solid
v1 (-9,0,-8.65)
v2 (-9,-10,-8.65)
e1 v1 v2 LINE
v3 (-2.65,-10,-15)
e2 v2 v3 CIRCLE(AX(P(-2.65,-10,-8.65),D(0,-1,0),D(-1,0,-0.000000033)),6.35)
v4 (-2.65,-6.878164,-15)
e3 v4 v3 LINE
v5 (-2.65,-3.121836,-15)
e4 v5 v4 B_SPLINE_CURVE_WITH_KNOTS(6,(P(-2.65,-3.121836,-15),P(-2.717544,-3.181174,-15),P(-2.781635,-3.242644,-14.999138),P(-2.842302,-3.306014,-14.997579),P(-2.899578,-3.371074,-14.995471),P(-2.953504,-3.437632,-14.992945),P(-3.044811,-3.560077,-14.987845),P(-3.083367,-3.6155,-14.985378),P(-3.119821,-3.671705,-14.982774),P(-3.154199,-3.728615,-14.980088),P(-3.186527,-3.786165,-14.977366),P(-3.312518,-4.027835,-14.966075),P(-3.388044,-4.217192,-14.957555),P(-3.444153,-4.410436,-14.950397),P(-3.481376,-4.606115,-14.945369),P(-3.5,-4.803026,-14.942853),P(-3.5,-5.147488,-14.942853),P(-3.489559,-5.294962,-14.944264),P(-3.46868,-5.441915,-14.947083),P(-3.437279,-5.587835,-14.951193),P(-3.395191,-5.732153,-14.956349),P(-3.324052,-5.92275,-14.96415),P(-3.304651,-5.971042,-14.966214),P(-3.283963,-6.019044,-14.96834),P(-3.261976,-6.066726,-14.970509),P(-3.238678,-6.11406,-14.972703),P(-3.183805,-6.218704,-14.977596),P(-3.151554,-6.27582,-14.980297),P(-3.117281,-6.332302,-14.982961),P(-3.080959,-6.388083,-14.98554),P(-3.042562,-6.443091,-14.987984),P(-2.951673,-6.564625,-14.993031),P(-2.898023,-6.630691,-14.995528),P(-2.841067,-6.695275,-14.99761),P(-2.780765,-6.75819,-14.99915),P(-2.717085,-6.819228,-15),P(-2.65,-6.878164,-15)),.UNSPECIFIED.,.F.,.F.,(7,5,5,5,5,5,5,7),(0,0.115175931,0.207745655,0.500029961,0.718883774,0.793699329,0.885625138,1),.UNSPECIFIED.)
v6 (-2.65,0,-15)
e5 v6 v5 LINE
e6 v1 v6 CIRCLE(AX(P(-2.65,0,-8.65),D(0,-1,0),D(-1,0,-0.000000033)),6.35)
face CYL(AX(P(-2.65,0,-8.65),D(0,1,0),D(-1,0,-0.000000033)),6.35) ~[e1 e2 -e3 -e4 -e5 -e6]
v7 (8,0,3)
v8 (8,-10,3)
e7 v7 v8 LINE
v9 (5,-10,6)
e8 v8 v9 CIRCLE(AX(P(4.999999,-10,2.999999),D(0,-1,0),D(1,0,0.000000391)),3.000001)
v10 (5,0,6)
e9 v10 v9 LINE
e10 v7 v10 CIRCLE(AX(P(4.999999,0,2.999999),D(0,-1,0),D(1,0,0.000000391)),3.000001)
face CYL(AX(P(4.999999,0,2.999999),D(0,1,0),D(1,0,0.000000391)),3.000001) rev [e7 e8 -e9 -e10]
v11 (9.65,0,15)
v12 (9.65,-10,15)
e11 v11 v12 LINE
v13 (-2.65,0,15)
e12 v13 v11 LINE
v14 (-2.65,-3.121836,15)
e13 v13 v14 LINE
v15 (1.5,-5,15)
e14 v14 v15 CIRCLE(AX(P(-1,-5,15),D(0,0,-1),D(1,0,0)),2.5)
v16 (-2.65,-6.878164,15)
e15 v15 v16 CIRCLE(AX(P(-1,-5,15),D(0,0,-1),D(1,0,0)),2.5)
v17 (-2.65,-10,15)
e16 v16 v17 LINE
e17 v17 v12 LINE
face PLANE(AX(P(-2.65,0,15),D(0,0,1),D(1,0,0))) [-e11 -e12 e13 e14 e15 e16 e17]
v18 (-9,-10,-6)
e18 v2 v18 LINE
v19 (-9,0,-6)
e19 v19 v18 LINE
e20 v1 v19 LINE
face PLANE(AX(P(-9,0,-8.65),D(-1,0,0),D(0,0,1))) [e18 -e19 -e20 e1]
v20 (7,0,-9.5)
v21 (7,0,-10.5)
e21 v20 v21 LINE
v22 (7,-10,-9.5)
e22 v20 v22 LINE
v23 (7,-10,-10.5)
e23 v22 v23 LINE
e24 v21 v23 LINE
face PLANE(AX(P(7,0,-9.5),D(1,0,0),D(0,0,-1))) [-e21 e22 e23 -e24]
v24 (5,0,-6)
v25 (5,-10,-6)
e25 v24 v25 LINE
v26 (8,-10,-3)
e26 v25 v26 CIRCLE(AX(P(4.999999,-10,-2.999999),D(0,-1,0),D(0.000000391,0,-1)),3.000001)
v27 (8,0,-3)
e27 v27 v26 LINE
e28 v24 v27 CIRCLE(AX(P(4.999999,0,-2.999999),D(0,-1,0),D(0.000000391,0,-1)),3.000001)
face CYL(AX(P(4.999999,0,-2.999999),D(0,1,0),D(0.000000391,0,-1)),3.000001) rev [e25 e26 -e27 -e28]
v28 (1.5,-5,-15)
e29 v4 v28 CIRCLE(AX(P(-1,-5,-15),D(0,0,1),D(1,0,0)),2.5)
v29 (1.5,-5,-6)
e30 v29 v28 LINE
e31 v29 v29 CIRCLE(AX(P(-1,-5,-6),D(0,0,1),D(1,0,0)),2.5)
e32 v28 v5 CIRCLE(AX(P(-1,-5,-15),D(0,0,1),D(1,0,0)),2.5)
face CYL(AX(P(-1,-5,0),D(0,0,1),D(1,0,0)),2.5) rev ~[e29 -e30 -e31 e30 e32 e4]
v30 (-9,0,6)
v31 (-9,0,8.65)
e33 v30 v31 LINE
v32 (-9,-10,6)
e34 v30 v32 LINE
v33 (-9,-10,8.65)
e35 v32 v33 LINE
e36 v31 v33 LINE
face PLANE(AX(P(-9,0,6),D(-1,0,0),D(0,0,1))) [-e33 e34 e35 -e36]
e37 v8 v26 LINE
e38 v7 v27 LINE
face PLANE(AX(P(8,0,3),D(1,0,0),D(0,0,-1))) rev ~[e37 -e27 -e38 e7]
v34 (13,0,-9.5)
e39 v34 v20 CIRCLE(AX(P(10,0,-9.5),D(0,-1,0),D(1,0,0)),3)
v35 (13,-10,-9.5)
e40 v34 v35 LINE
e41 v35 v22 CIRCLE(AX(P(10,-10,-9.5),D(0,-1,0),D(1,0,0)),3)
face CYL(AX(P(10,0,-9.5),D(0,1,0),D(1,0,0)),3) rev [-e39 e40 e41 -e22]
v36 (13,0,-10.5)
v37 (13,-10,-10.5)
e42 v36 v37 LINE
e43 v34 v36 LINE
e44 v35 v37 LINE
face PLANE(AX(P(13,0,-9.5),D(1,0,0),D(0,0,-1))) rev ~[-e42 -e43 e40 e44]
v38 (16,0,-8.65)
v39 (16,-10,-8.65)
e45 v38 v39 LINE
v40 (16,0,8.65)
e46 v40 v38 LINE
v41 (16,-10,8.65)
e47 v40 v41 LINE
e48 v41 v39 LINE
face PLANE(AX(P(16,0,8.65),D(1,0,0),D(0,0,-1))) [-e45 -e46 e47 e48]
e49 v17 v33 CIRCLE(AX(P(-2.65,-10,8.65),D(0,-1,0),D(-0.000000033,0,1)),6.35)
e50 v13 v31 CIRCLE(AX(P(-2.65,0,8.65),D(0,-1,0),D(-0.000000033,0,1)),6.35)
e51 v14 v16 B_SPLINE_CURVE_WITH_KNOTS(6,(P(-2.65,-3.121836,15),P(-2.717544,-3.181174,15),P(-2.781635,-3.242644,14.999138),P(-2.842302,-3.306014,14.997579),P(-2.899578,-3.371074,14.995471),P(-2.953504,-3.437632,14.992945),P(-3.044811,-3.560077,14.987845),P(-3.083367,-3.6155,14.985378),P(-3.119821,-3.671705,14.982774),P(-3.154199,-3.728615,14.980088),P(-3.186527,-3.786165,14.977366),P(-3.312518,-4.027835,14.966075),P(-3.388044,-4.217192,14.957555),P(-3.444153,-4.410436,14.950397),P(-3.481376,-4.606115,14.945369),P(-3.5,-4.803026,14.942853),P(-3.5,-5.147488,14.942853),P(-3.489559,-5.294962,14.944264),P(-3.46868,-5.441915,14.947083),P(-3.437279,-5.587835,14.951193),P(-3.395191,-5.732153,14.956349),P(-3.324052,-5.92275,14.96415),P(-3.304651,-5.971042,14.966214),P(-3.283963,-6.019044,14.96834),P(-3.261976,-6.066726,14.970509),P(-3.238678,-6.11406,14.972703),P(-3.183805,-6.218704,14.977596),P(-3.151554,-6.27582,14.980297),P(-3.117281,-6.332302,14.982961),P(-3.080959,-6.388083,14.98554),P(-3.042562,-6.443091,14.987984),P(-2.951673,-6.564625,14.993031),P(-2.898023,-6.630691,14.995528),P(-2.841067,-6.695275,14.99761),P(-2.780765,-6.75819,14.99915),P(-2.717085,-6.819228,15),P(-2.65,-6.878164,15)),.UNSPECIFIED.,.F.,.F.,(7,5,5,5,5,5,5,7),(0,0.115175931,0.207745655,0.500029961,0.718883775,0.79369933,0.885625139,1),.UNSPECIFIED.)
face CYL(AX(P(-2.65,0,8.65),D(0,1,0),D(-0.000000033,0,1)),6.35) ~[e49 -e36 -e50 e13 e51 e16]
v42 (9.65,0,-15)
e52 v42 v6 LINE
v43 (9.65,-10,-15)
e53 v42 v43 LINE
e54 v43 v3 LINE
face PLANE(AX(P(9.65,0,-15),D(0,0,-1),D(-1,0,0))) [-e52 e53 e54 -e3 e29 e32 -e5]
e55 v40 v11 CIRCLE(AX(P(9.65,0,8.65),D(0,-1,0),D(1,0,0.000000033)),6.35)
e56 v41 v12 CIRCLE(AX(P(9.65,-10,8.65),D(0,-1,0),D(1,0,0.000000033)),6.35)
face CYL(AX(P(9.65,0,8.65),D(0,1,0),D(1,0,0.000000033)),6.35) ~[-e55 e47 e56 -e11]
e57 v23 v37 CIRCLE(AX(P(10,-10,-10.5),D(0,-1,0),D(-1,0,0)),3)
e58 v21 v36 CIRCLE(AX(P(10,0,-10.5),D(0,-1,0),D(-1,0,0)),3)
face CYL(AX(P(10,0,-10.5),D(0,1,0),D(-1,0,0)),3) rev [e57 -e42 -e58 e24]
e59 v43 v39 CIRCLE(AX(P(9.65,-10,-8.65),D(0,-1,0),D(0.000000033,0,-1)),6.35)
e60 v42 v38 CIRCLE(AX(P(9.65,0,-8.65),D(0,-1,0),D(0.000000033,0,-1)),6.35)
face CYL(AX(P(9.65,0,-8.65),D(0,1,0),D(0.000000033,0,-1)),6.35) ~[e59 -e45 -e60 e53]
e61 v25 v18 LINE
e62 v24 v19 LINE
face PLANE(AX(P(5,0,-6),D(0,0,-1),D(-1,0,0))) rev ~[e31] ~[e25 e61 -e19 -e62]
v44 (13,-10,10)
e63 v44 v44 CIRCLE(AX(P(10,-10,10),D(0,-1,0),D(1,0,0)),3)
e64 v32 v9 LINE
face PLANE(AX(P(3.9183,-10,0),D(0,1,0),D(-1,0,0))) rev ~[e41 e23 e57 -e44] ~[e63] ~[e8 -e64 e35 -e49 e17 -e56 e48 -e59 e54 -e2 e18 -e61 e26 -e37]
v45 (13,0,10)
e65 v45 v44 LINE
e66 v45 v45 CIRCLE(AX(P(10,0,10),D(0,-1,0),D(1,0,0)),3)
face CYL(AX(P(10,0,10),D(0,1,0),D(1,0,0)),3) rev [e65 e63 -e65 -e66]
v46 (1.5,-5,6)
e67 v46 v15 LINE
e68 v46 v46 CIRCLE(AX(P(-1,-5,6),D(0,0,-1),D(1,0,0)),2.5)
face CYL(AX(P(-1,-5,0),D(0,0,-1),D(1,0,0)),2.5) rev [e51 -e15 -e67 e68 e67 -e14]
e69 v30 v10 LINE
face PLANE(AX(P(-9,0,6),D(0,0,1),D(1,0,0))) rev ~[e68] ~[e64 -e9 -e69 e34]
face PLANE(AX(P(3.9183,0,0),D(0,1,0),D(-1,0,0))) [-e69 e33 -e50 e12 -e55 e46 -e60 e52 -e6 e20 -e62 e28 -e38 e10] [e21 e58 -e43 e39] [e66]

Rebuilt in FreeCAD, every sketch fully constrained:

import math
import FreeCAD as App
import Part
import Sketcher

V = App.Vector
Q = App.Units.Quantity

doc = App.newDocument("Part")
body = doc.addObject("PartDesign::Body", "Body")

sketch1 = body.newObject("Sketcher::SketchObject", "Sketch")
sketch1.AttachmentSupport = (doc.getObject("XZ_Plane"), [""])
sketch1.MapMode = "FlatFace"
sketch1.addGeometry(Part.LineSegment(V(9.7, 15, 0), V(-2.6, 15, 0)), False)
sketch1.addGeometry(Part.ArcOfCircle(Part.Circle(V(-2.6, 8.6, 0), V(0, 0, 1), 6.4), math.radians(90), math.radians(180)), False)
sketch1.addGeometry(Part.LineSegment(V(-9, 8.7, 0), V(-9, 6, 0)), False)
sketch1.addGeometry(Part.LineSegment(V(-9, 6, 0), V(5, 6, 0)), False)
sketch1.addGeometry(Part.ArcOfCircle(Part.Circle(V(5, 3, 0), V(0, 0, 1), 3), math.radians(0), math.radians(90)), False)
sketch1.addGeometry(Part.LineSegment(V(8, 3, 0), V(8, -3, 0)), False)
sketch1.addGeometry(Part.ArcOfCircle(Part.Circle(V(5, -3, 0), V(0, 0, 1), 3), math.radians(-90), math.radians(0)), False)
sketch1.addGeometry(Part.LineSegment(V(5, -6, 0), V(-9, -6, 0)), False)
sketch1.addGeometry(Part.LineSegment(V(-9, -6, 0), V(-9, -8.7, 0)), False)
sketch1.addGeometry(Part.ArcOfCircle(Part.Circle(V(-2.6, -8.6, 0), V(0, 0, 1), 6.4), math.radians(-180), math.radians(-90)), False)
sketch1.addGeometry(Part.LineSegment(V(-2.6, -15, 0), V(9.7, -15, 0)), False)
sketch1.addGeometry(Part.ArcOfCircle(Part.Circle(V(9.6, -8.6, 0), V(0, 0, 1), 6.4), math.radians(-90), math.radians(0)), False)
sketch1.addGeometry(Part.LineSegment(V(16, -8.7, 0), V(16, 8.7, 0)), False)
sketch1.addGeometry(Part.ArcOfCircle(Part.Circle(V(9.6, 8.6, 0), V(0, 0, 1), 6.4), math.radians(0), math.radians(90)), False)
sketch1.addGeometry(Part.LineSegment(V(13, -9.5, 0), V(13, -10.5, 0)), False)
sketch1.addGeometry(Part.ArcOfCircle(Part.Circle(V(10, -10.5, 0), V(0, 0, 1), 3), math.radians(180), math.radians(360)), False)
sketch1.addGeometry(Part.LineSegment(V(7, -10.5, 0), V(7, -9.5, 0)), False)
sketch1.addGeometry(Part.ArcOfCircle(Part.Circle(V(10, -9.5, 0), V(0, 0, 1), 3), math.radians(0), math.radians(180)), False)
sketch1.addGeometry(Part.Circle(V(10, 10, 0), V(0, 0, 1), 3), False)
sketch1.addConstraint(Sketcher.Constraint("Tangent", 0, 2, 1, 1))
sketch1.addConstraint(Sketcher.Constraint("Tangent", 1, 2, 2, 1))
sketch1.addConstraint(Sketcher.Constraint("Coincident", 2, 2, 3, 1))
sketch1.addConstraint(Sketcher.Constraint("Tangent", 3, 2, 4, 2))
sketch1.addConstraint(Sketcher.Constraint("Tangent", 4, 1, 5, 1))
sketch1.addConstraint(Sketcher.Constraint("Tangent", 5, 2, 6, 2))
sketch1.addConstraint(Sketcher.Constraint("Tangent", 6, 1, 7, 1))
sketch1.addConstraint(Sketcher.Constraint("Coincident", 7, 2, 8, 1))
sketch1.addConstraint(Sketcher.Constraint("Tangent", 8, 2, 9, 1))
sketch1.addConstraint(Sketcher.Constraint("Tangent", 9, 2, 10, 1))
sketch1.addConstraint(Sketcher.Constraint("Tangent", 10, 2, 11, 1))
sketch1.addConstraint(Sketcher.Constraint("Tangent", 11, 2, 12, 1))
sketch1.addConstraint(Sketcher.Constraint("Tangent", 12, 2, 13, 1))
sketch1.addConstraint(Sketcher.Constraint("Tangent", 13, 2, 0, 1))
sketch1.addConstraint(Sketcher.Constraint("Tangent", 14, 2, 15, 2))
sketch1.addConstraint(Sketcher.Constraint("Tangent", 15, 1, 16, 1))
sketch1.addConstraint(Sketcher.Constraint("Tangent", 16, 2, 17, 2))
sketch1.addConstraint(Sketcher.Constraint("Tangent", 17, 1, 14, 1))
sketch1.addConstraint(Sketcher.Constraint("Horizontal", 0))
sketch1.addConstraint(Sketcher.Constraint("Vertical", 2))
sketch1.addConstraint(Sketcher.Constraint("Horizontal", 3))
sketch1.addConstraint(Sketcher.Constraint("Vertical", 5))
sketch1.addConstraint(Sketcher.Constraint("Horizontal", 7))
sketch1.addConstraint(Sketcher.Constraint("Vertical", 8))
sketch1.addConstraint(Sketcher.Constraint("Horizontal", 10))
sketch1.addConstraint(Sketcher.Constraint("Vertical", 12))
sketch1.addConstraint(Sketcher.Constraint("Vertical", 14))
sketch1.addConstraint(Sketcher.Constraint("Vertical", 16))
sketch1.addConstraint(Sketcher.Constraint("Equal", 4, 6))
sketch1.addConstraint(Sketcher.Constraint("Equal", 1, 9))
sketch1.addConstraint(Sketcher.Constraint("Equal", 9, 11))
sketch1.addConstraint(Sketcher.Constraint("Equal", 11, 13))
sketch1.addConstraint(Sketcher.Constraint("Equal", 6, 15))
sketch1.addConstraint(Sketcher.Constraint("Equal", 17, 18))
sketch1.addConstraint(Sketcher.Constraint("Symmetric", 1, 3, 9, 3, -1))
sketch1.addConstraint(Sketcher.Constraint("Vertical", 17, 3, 18, 3))
sketch1.addConstraint(Sketcher.Constraint("Equal", 2, 8))
sketch1.addConstraint(Sketcher.Constraint("Diameter", 18, Q("6 mm")))
sketch1.addConstraint(Sketcher.Constraint("DistanceX", 3, 1, 3, 2, Q("14 mm")))
sketch1.addConstraint(Sketcher.Constraint("DistanceY", 5, 2, 5, 1, Q("6 mm")))
sketch1.addConstraint(Sketcher.Constraint("DistanceY", 14, 2, 14, 1, Q("1 mm")))
sketch1.addConstraint(Sketcher.Constraint("Radius", 1, Q("6.35 mm")))
sketch1.addConstraint(Sketcher.Constraint("DistanceX", 0, 2, 0, 1, Q("12.3 mm")))
sketch1.addConstraint(Sketcher.Constraint("DistanceY", 12, 1, 12, 2, Q("17.3 mm")))
sketch1.addConstraint(Sketcher.Constraint("DistanceX", -1, 1, 4, 3, Q("4.999999 mm")))
sketch1.addConstraint(Sketcher.Constraint("DistanceX", -1, 1, 15, 3, Q("10 mm")))
sketch1.addConstraint(Sketcher.Constraint("DistanceY", -1, 1, 18, 3, Q("10 mm")))
sketch1.addConstraint(Sketcher.Constraint("DistanceY", 15, 3, -1, 1, Q("10.5 mm")))
pad1 = body.newObject("PartDesign::Pad", "Pad")
pad1.Profile = sketch1
pad1.Length = 10

sketch2 = body.newObject("Sketcher::SketchObject", "Sketch001")
sketch2.AttachmentSupport = (doc.getObject("XY_Plane"), [""])
sketch2.MapMode = "FlatFace"
sketch2.addGeometry(Part.Circle(V(-1, -5, 0), V(0, 0, 1), 2.5), False)
sketch2.addConstraint(Sketcher.Constraint("Diameter", 0, Q("5 mm")))
sketch2.addConstraint(Sketcher.Constraint("DistanceX", 0, 3, -1, 1, Q("1 mm")))
sketch2.addConstraint(Sketcher.Constraint("DistanceY", 0, 3, -1, 1, Q("5 mm")))
pocket1 = body.newObject("PartDesign::Pocket", "Pocket")
pocket1.Profile = sketch2
pocket1.Type = "ThroughAll"
pocket1.Midplane = True

doc.recompute()
